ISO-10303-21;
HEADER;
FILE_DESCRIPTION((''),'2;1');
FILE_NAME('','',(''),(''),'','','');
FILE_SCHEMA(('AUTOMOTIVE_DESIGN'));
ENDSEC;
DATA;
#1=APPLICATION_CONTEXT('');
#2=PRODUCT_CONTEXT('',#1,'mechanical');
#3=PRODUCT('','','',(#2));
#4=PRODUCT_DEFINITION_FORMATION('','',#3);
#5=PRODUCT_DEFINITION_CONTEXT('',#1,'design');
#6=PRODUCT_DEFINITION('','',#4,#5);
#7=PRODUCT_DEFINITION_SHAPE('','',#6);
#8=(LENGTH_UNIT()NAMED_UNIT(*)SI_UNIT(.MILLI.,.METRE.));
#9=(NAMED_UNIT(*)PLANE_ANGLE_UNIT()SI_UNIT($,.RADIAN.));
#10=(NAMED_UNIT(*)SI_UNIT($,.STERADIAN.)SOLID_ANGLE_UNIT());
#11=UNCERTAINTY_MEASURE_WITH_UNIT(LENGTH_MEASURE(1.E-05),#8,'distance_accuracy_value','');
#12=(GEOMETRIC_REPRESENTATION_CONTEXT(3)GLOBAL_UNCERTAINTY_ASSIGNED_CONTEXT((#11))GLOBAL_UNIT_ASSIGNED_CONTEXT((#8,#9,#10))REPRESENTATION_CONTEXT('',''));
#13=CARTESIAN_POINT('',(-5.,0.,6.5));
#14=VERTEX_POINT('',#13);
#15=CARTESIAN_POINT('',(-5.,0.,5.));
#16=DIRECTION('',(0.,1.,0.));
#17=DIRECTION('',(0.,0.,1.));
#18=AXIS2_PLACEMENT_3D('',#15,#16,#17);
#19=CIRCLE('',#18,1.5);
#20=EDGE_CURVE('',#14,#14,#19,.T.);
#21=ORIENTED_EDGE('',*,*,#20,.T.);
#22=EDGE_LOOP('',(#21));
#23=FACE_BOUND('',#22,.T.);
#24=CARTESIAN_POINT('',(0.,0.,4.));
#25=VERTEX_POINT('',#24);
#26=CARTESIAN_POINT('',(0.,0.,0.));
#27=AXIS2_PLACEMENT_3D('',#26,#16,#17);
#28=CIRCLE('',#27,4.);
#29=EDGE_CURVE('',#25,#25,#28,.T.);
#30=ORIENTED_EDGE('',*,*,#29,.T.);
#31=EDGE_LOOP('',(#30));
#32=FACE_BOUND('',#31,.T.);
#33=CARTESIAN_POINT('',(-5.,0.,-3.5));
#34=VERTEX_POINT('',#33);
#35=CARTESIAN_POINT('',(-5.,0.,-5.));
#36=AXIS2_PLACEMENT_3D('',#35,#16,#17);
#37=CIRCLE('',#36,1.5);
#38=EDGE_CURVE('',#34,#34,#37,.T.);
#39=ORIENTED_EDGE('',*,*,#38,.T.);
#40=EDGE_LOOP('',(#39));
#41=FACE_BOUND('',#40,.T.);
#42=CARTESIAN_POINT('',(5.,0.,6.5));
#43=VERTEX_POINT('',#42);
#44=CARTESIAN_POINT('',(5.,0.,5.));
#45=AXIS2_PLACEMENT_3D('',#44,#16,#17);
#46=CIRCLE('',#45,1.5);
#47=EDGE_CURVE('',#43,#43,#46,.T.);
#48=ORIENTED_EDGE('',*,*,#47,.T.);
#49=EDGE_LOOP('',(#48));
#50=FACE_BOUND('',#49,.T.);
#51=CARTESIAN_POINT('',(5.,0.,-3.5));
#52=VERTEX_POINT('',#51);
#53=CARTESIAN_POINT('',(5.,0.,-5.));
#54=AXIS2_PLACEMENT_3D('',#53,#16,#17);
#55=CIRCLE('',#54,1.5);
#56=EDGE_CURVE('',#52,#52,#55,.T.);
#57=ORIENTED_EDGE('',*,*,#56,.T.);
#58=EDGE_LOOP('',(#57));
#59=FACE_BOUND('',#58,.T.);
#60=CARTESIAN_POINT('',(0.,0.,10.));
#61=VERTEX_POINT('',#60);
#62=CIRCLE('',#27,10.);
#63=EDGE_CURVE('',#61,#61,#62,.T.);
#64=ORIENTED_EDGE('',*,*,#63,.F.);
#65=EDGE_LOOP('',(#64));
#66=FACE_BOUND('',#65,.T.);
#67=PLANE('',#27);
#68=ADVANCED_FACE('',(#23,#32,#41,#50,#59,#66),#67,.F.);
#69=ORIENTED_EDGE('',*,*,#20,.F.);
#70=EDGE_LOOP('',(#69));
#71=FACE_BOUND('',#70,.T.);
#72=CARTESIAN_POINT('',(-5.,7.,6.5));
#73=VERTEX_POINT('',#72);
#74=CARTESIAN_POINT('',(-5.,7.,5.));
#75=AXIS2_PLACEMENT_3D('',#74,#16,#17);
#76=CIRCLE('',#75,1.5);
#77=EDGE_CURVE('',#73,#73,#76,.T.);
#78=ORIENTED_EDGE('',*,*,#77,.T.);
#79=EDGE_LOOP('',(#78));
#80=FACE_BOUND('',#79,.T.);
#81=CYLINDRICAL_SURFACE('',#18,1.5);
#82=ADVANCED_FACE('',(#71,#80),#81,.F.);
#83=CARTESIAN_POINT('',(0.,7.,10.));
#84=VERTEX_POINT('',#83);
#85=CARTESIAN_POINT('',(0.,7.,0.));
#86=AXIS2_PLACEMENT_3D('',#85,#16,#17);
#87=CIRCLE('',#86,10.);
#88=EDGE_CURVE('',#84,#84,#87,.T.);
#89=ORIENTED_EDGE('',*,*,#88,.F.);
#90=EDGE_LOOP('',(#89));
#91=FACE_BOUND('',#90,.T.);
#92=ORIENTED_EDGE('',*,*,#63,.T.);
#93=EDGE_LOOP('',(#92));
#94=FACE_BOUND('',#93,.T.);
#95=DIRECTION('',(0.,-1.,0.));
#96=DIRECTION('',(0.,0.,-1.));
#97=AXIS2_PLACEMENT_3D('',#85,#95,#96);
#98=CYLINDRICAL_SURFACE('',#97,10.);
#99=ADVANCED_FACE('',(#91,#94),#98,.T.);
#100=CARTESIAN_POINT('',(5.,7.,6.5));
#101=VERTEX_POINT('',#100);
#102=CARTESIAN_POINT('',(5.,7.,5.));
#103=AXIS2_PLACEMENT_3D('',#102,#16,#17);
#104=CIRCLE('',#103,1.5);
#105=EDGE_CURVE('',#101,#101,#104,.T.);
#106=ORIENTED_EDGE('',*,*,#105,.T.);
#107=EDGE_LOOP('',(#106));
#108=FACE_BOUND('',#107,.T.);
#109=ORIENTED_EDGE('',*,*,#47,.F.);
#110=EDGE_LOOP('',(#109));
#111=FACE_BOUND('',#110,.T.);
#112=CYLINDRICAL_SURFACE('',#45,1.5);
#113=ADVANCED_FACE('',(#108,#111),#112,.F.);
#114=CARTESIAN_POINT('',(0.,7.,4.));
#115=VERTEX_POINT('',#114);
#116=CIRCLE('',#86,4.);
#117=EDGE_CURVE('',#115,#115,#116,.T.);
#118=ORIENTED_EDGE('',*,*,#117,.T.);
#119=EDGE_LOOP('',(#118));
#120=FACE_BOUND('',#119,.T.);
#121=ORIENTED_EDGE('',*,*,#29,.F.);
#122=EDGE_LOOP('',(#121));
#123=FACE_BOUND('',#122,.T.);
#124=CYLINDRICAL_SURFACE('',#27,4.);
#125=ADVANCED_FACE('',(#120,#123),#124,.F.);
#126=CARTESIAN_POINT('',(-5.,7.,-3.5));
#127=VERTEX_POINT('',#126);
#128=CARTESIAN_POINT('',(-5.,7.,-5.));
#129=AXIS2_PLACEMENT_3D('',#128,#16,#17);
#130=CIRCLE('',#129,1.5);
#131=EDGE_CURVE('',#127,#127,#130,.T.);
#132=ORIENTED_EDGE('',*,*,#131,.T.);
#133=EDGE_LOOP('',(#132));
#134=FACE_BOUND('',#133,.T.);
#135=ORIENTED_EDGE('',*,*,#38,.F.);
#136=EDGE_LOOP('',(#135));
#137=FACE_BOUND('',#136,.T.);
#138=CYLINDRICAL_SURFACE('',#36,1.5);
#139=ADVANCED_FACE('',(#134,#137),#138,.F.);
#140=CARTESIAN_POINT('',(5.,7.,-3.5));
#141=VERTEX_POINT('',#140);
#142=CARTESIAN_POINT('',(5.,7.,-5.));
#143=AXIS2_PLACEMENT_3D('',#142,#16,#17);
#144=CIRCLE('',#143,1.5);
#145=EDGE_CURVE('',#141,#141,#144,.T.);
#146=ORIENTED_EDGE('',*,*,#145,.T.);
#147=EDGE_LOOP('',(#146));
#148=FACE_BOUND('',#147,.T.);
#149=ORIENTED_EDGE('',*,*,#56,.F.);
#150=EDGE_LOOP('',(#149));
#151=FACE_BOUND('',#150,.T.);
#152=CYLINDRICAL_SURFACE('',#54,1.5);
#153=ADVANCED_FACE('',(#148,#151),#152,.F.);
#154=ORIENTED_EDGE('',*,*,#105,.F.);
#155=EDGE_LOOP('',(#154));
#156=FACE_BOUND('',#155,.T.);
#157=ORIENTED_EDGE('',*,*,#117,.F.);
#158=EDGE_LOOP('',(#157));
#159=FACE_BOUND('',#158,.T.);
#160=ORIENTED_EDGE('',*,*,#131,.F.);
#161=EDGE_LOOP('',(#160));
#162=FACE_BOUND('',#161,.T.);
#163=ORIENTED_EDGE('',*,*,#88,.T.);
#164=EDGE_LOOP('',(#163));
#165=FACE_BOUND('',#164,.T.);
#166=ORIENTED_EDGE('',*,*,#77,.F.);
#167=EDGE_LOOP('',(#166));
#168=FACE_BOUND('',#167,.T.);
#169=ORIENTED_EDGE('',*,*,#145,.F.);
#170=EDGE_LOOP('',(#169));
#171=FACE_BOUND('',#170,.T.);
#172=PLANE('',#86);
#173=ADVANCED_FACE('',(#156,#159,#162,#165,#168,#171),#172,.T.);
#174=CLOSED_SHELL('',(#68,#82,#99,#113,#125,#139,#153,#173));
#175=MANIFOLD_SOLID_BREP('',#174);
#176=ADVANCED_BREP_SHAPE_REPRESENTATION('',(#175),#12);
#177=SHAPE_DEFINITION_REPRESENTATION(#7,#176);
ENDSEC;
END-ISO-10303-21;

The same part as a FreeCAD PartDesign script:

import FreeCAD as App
import Part
import Sketcher
from FreeCAD import Vector
Q = App.Units.Quantity

doc = App.newDocument("Part")
body = doc.addObject("PartDesign::Body", "Body")

sketch1 = doc.addObject("Sketcher::SketchObject", "Sketch")
body.addObject(sketch1)
sketch1.AttachmentSupport = (doc.XZ_Plane, [""])
sketch1.MapMode = "FlatFace"
sketch1.addGeometry(Part.Circle(Vector(0, 0, 0), Vector(0, 0, 1), 10), False)
sketch1.addConstraint([
    Sketcher.Constraint("Coincident", 0, 3, -1, 1),
    Sketcher.Constraint("Diameter", 0, Q("20 mm")),
])
pad1 = doc.addObject("PartDesign::Pad", "Pad")
body.addObject(pad1)
pad1.Profile = sketch1
pad1.Length = 7
pad1.Reversed = True

sketch2 = doc.addObject("Sketcher::SketchObject", "Sketch001")
body.addObject(sketch2)
sketch2.AttachmentSupport = (doc.XZ_Plane, [""])
sketch2.MapMode = "FlatFace"
sketch2.AttachmentOffset = App.Placement(Vector(0, 0, -7), App.Rotation())
sketch2.addGeometry([
    Part.Circle(Vector(0, 0, 0), Vector(0, 0, 1), 4),
    Part.Circle(Vector(-5, -5, 0), Vector(0, 0, 1), 1.5),
    Part.Circle(Vector(-5, 5, 0), Vector(0, 0, 1), 1.5),
    Part.Circle(Vector(5, 5, 0), Vector(0, 0, 1), 1.5),
    Part.Circle(Vector(5, -5, 0), Vector(0, 0, 1), 1.5),
], False)
sketch2.addConstraint([
    Sketcher.Constraint("Coincident", 0, 3, -1, 1),
    Sketcher.Constraint("Equal", 1, 2),
    Sketcher.Constraint("Equal", 2, 3),
    Sketcher.Constraint("Equal", 3, 4),
    Sketcher.Constraint("Symmetric", 1, 3, 3, 3, -1, 1),
    Sketcher.Constraint("Symmetric", 2, 3, 4, 3, -1, 1),
    Sketcher.Constraint("Symmetric", 2, 3, 3, 3, -2),
    Sketcher.Constraint("Diameter", 0, Q("8 mm")),
    Sketcher.Constraint("Diameter", 1, Q("3 mm")),
    Sketcher.Constraint("DistanceX", 1, 3, -1, 1, Q("5 mm")),
    Sketcher.Constraint("DistanceY", 1, 3, -1, 1, Q("5 mm")),
])
pocket1 = doc.addObject("PartDesign::Pocket", "Pocket")
body.addObject(pocket1)
pocket1.Profile = sketch2
pocket1.Length = 7
pocket1.Reversed = True

doc.recompute()
